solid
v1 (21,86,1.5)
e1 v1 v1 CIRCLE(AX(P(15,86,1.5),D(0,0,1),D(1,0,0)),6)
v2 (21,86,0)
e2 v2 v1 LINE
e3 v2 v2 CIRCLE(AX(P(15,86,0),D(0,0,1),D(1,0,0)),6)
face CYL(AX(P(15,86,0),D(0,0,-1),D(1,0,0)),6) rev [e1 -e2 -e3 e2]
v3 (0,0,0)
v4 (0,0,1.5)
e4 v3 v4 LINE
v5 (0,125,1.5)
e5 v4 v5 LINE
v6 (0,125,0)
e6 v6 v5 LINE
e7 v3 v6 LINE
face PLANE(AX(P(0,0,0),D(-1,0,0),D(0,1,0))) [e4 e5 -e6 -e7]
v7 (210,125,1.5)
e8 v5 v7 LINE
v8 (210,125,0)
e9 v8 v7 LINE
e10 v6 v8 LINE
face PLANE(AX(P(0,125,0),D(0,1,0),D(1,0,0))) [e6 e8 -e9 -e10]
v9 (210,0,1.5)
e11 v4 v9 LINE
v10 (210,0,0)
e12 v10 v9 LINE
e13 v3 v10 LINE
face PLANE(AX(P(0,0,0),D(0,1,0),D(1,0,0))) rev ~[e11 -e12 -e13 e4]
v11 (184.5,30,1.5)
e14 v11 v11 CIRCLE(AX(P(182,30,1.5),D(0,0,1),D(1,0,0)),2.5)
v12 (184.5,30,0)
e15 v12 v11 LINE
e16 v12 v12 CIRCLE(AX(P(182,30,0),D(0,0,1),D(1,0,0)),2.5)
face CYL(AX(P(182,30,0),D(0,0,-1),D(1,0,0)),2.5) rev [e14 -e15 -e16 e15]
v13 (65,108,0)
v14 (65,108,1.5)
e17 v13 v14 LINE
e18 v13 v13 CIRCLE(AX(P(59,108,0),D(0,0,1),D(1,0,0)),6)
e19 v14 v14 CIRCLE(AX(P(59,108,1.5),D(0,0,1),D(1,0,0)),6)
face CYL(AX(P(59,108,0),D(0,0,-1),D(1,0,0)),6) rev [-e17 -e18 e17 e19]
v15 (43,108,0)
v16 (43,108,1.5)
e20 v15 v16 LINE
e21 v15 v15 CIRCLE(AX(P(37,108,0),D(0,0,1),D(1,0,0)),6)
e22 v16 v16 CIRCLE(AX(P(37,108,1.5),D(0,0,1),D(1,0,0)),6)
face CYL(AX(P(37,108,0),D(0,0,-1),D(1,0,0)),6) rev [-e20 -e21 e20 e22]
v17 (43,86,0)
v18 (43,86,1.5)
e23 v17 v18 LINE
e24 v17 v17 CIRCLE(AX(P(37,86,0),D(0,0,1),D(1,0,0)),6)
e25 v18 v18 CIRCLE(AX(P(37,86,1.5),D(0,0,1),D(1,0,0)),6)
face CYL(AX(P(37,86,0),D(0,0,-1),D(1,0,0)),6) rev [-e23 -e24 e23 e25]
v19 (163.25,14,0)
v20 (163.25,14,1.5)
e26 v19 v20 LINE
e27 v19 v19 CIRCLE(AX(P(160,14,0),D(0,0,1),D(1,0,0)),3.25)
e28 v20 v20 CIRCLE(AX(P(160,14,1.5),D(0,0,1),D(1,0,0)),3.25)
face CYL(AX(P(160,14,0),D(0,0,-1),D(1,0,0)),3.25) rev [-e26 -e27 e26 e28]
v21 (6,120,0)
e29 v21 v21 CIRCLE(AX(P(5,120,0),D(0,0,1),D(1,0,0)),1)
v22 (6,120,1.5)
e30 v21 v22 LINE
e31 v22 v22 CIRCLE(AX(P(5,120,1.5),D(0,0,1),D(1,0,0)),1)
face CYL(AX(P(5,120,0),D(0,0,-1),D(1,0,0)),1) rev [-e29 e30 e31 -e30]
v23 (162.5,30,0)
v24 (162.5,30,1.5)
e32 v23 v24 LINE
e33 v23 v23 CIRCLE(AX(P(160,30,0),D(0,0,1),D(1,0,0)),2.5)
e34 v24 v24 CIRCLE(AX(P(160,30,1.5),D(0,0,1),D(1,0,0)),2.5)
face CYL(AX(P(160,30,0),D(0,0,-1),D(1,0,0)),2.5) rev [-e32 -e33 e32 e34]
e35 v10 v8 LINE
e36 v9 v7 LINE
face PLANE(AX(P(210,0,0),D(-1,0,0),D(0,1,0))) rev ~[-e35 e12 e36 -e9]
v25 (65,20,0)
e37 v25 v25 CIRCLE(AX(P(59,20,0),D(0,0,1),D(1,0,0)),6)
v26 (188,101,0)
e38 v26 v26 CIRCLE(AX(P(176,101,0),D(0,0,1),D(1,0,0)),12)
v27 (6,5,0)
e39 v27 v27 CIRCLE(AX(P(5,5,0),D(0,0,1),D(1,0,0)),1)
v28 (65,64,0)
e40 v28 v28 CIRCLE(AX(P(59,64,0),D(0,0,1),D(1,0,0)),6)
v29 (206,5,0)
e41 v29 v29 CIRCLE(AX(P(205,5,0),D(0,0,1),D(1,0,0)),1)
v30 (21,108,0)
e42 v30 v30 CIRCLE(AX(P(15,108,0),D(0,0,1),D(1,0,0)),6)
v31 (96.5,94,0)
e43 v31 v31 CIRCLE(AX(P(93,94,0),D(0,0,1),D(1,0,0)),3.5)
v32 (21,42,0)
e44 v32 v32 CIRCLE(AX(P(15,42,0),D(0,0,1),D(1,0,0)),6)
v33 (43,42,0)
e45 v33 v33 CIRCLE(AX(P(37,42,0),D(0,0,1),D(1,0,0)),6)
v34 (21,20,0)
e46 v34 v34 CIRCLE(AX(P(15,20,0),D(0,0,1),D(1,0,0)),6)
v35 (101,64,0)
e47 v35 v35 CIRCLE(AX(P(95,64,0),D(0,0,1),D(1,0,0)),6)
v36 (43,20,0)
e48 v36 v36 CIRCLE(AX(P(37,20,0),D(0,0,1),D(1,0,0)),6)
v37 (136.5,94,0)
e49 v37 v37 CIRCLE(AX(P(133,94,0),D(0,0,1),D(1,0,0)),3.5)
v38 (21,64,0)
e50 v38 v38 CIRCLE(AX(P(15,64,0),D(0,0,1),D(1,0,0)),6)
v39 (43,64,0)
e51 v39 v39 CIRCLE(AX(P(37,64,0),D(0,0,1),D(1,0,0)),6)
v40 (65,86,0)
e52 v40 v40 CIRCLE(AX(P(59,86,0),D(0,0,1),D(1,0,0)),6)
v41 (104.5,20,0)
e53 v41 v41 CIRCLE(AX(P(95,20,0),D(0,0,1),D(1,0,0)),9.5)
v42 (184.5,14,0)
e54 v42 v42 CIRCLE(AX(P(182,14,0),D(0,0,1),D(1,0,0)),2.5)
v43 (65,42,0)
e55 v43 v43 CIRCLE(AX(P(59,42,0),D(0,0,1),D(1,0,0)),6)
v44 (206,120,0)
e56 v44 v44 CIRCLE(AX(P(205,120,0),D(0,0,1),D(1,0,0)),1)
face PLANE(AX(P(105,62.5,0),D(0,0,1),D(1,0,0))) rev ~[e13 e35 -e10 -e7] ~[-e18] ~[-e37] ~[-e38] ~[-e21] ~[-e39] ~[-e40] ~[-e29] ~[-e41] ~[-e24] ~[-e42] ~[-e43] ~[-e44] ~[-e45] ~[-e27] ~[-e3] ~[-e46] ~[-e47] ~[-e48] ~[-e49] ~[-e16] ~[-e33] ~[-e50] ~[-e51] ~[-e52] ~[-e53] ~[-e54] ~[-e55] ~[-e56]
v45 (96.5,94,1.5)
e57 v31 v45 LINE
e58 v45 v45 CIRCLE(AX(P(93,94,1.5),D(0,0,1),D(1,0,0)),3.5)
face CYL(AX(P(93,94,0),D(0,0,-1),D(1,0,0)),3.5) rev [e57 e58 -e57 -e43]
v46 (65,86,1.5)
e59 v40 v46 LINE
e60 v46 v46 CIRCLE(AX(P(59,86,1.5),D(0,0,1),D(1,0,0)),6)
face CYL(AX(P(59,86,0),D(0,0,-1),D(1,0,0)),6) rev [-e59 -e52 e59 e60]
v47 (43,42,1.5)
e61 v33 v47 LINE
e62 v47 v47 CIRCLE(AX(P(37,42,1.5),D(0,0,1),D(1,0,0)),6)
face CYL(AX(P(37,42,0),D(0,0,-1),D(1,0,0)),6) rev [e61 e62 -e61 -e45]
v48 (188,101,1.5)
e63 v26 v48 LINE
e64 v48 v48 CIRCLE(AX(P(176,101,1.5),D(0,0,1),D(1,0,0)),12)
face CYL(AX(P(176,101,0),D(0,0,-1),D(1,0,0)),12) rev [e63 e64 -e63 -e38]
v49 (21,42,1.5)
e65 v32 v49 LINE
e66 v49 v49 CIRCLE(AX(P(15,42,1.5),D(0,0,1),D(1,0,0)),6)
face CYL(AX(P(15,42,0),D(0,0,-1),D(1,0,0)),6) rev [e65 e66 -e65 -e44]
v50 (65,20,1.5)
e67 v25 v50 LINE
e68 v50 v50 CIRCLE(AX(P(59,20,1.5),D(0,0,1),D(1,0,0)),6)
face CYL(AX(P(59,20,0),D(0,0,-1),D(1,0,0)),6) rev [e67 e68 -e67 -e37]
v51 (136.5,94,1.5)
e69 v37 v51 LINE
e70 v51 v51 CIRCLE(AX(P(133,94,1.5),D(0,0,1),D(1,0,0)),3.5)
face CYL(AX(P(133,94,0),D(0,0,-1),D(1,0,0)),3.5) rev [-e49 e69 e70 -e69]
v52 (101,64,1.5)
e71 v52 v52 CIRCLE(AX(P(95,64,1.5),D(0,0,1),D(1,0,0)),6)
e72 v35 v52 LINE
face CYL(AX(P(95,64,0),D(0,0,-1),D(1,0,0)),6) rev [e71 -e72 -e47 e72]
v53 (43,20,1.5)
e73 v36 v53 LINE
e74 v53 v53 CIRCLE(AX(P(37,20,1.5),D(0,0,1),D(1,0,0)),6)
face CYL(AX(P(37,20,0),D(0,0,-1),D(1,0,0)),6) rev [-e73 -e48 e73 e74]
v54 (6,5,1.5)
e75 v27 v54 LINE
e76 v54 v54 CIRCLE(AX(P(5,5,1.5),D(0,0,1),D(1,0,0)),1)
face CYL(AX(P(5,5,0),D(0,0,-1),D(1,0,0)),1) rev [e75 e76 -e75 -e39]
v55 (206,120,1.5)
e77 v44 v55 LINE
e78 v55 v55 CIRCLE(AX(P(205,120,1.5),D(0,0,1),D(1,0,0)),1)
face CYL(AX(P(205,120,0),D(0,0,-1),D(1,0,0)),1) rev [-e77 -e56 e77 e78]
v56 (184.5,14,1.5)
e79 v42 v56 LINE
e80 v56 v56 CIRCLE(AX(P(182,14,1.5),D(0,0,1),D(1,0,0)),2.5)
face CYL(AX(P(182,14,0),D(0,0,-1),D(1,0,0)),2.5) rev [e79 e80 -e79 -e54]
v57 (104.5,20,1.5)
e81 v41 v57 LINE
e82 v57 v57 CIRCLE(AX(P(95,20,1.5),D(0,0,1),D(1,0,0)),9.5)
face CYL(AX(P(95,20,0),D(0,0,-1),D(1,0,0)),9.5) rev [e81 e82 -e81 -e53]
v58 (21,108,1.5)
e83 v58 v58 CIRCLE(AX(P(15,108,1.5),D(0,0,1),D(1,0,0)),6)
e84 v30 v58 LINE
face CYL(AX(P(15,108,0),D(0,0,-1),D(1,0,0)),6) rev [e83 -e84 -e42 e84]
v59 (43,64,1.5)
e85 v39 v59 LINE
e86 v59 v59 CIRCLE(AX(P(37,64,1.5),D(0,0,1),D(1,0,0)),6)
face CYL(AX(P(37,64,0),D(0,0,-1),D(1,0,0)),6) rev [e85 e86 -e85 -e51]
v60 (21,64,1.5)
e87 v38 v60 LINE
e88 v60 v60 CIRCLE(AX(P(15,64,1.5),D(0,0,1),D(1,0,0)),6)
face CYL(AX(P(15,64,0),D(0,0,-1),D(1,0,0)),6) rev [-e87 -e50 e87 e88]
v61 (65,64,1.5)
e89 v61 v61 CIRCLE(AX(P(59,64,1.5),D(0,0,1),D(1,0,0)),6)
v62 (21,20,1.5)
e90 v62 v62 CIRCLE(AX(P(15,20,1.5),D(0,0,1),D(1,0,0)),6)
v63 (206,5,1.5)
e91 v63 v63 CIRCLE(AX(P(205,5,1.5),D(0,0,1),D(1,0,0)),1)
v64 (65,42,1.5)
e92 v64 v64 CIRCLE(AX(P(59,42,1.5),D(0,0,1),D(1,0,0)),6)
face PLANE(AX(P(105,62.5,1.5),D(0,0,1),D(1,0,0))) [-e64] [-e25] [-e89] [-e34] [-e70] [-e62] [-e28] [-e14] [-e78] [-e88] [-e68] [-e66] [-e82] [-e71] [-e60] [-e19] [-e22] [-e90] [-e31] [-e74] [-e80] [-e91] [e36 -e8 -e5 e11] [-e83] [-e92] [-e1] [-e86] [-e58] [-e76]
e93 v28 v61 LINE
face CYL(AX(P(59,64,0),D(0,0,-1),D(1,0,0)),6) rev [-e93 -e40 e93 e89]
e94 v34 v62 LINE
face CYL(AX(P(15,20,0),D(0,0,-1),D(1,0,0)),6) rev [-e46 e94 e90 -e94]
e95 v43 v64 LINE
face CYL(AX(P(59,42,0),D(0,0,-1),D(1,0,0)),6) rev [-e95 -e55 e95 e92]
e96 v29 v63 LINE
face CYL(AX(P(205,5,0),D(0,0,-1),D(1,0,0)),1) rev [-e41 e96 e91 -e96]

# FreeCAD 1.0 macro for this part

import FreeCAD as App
import Part
import Sketcher
from FreeCAD import Vector
Q = App.Units.Quantity

doc = App.newDocument("Part")
body = doc.addObject("PartDesign::Body", "Body")

# Sketch on XY plane
sketch1 = body.newObject("Sketcher::SketchObject", "Sketch")
sketch1.AttachmentSupport = (doc.getObject("XY_Plane"), [""])
sketch1.MapMode = "FlatFace"
sketch1.addGeometry(Part.LineSegment(Vector(0, 125, 0), Vector(0, 0, 0)), False)
sketch1.addGeometry(Part.LineSegment(Vector(0, 0, 0), Vector(210, 0, 0)), False)
sketch1.addGeometry(Part.LineSegment(Vector(210, 0, 0), Vector(210, 125, 0)), False)
sketch1.addGeometry(Part.LineSegment(Vector(210, 125, 0), Vector(0, 125, 0)), False)
sketch1.addGeometry(Part.Circle(Vector(5, 5, 0), Vector(0, 0, 1), 1), False)
sketch1.addGeometry(Part.Circle(Vector(15, 20, 0), Vector(0, 0, 1), 6), False)
sketch1.addGeometry(Part.Circle(Vector(37, 20, 0), Vector(0, 0, 1), 6), False)
sketch1.addGeometry(Part.Circle(Vector(59, 20, 0), Vector(0, 0, 1), 6), False)
sketch1.addGeometry(Part.Circle(Vector(95, 20, 0), Vector(0, 0, 1), 9.5), False)
sketch1.addGeometry(Part.Circle(Vector(15, 42, 0), Vector(0, 0, 1), 6), False)
sketch1.addGeometry(Part.Circle(Vector(37, 42, 0), Vector(0, 0, 1), 6), False)
sketch1.addGeometry(Part.Circle(Vector(59, 42, 0), Vector(0, 0, 1), 6), False)
sketch1.addGeometry(Part.Circle(Vector(160, 14, 0), Vector(0, 0, 1), 3.2), False)
sketch1.addGeometry(Part.Circle(Vector(205, 5, 0), Vector(0, 0, 1), 1), False)
sketch1.addGeometry(Part.Circle(Vector(182, 14, 0), Vector(0, 0, 1), 2.5), False)
sketch1.addGeometry(Part.Circle(Vector(160, 30, 0), Vector(0, 0, 1), 2.5), False)
sketch1.addGeometry(Part.Circle(Vector(182, 30, 0), Vector(0, 0, 1), 2.5), False)
sketch1.addGeometry(Part.Circle(Vector(15, 64, 0), Vector(0, 0, 1), 6), False)
sketch1.addGeometry(Part.Circle(Vector(37, 64, 0), Vector(0, 0, 1), 6), False)
sketch1.addGeometry(Part.Circle(Vector(15, 86, 0), Vector(0, 0, 1), 6), False)
sketch1.addGeometry(Part.Circle(Vector(37, 86, 0), Vector(0, 0, 1), 6), False)
sketch1.addGeometry(Part.Circle(Vector(59, 64, 0), Vector(0, 0, 1), 6), False)
sketch1.addGeometry(Part.Circle(Vector(95, 64, 0), Vector(0, 0, 1), 6), False)
sketch1.addGeometry(Part.Circle(Vector(59, 86, 0), Vector(0, 0, 1), 6), False)
sketch1.addGeometry(Part.Circle(Vector(15, 108, 0), Vector(0, 0, 1), 6), False)
sketch1.addGeometry(Part.Circle(Vector(5, 120, 0), Vector(0, 0, 1), 1), False)
sketch1.addGeometry(Part.Circle(Vector(37, 108, 0), Vector(0, 0, 1), 6), False)
sketch1.addGeometry(Part.Circle(Vector(93, 94, 0), Vector(0, 0, 1), 3.5), False)
sketch1.addGeometry(Part.Circle(Vector(59, 108, 0), Vector(0, 0, 1), 6), False)
sketch1.addGeometry(Part.Circle(Vector(133, 94, 0), Vector(0, 0, 1), 3.5), False)
sketch1.addGeometry(Part.Circle(Vector(176, 101, 0), Vector(0, 0, 1), 12), False)
sketch1.addGeometry(Part.Circle(Vector(205, 120, 0), Vector(0, 0, 1), 1), False)
sketch1.addConstraint(Sketcher.Constraint("Coincident", 0, 2, 1, 1))
sketch1.addConstraint(Sketcher.Constraint("Coincident", 1, 2, 2, 1))
sketch1.addConstraint(Sketcher.Constraint("Coincident", 2, 2, 3, 1))
sketch1.addConstraint(Sketcher.Constraint("Coincident", 3, 2, 0, 1))
sketch1.addConstraint(Sketcher.Constraint("Vertical", 0))
sketch1.addConstraint(Sketcher.Constraint("Horizontal", 1))
sketch1.addConstraint(Sketcher.Constraint("Vertical", 2))
sketch1.addConstraint(Sketcher.Constraint("Horizontal", 3))
sketch1.addConstraint(Sketcher.Constraint("Coincident", 0, 2, -1, 1))
sketch1.addConstraint(Sketcher.Constraint("Equal", 5, 6))
sketch1.addConstraint(Sketcher.Constraint("Equal", 6, 7))
sketch1.addConstraint(Sketcher.Constraint("Equal", 7, 9))
sketch1.addConstraint(Sketcher.Constraint("Equal", 9, 10))
sketch1.addConstraint(Sketcher.Constraint("Equal", 10, 11))
sketch1.addConstraint(Sketcher.Constraint("Equal", 4, 13))
sketch1.addConstraint(Sketcher.Constraint("Equal", 14, 15))
sketch1.addConstraint(Sketcher.Constraint("Equal", 15, 16))
sketch1.addConstraint(Sketcher.Constraint("Equal", 11, 17))
sketch1.addConstraint(Sketcher.Constraint("Equal", 17, 18))
sketch1.addConstraint(Sketcher.Constraint("Equal", 18, 19))
sketch1.addConstraint(Sketcher.Constraint("Equal", 19, 20))
sketch1.addConstraint(Sketcher.Constraint("Equal", 20, 21))
sketch1.addConstraint(Sketcher.Constraint("Equal", 21, 22))
sketch1.addConstraint(Sketcher.Constraint("Equal", 22, 23))
sketch1.addConstraint(Sketcher.Constraint("Equal", 23, 24))
sketch1.addConstraint(Sketcher.Constraint("Equal", 13, 25))
sketch1.addConstraint(Sketcher.Constraint("Equal", 24, 26))
sketch1.addConstraint(Sketcher.Constraint("Equal", 26, 28))
sketch1.addConstraint(Sketcher.Constraint("Equal", 27, 29))
sketch1.addConstraint(Sketcher.Constraint("Equal", 25, 31))
sketch1.addConstraint(Sketcher.Constraint("Horizontal", 5, 3, 6, 3))
sketch1.addConstraint(Sketcher.Constraint("Horizontal", 6, 3, 7, 3))
sketch1.addConstraint(Sketcher.Constraint("Horizontal", 7, 3, 8, 3))
sketch1.addConstraint(Sketcher.Constraint("Horizontal", 9, 3, 10, 3))
sketch1.addConstraint(Sketcher.Constraint("Horizontal", 10, 3, 11, 3))
sketch1.addConstraint(Sketcher.Constraint("Horizontal", 4, 3, 13, 3))
sketch1.addConstraint(Sketcher.Constraint("Horizontal", 12, 3, 14, 3))
sketch1.addConstraint(Sketcher.Constraint("Horizontal", 15, 3, 16, 3))
sketch1.addConstraint(Sketcher.Constraint("Horizontal", 17, 3, 18, 3))
sketch1.addConstraint(Sketcher.Constraint("Horizontal", 19, 3, 20, 3))
sketch1.addConstraint(Sketcher.Constraint("Horizontal", 18, 3, 21, 3))
sketch1.addConstraint(Sketcher.Constraint("Horizontal", 21, 3, 22, 3))
sketch1.addConstraint(Sketcher.Constraint("Horizontal", 20, 3, 23, 3))
sketch1.addConstraint(Sketcher.Constraint("Horizontal", 24, 3, 26, 3))
sketch1.addConstraint(Sketcher.Constraint("Horizontal", 26, 3, 28, 3))
sketch1.addConstraint(Sketcher.Constraint("Horizontal", 27, 3, 29, 3))
sketch1.addConstraint(Sketcher.Constraint("Horizontal", 25, 3, 31, 3))
sketch1.addConstraint(Sketcher.Constraint("Vertical", 5, 3, 9, 3))
sketch1.addConstraint(Sketcher.Constraint("Vertical", 6, 3, 10, 3))
sketch1.addConstraint(Sketcher.Constraint("Vertical", 7, 3, 11, 3))
sketch1.addConstraint(Sketcher.Constraint("Vertical", 12, 3, 15, 3))
sketch1.addConstraint(Sketcher.Constraint("Vertical", 14, 3, 16, 3))
sketch1.addConstraint(Sketcher.Constraint("Vertical", 9, 3, 17, 3))
sketch1.addConstraint(Sketcher.Constraint("Vertical", 10, 3, 18, 3))
sketch1.addConstraint(Sketcher.Constraint("Vertical", 17, 3, 19, 3))
sketch1.addConstraint(Sketcher.Constraint("Vertical", 18, 3, 20, 3))
sketch1.addConstraint(Sketcher.Constraint("Vertical", 11, 3, 21, 3))
sketch1.addConstraint(Sketcher.Constraint("Vertical", 8, 3, 22, 3))
sketch1.addConstraint(Sketcher.Constraint("Vertical", 21, 3, 23, 3))
sketch1.addConstraint(Sketcher.Constraint("Vertical", 19, 3, 24, 3))
sketch1.addConstraint(Sketcher.Constraint("Vertical", 4, 3, 25, 3))
sketch1.addConstraint(Sketcher.Constraint("Vertical", 20, 3, 26, 3))
sketch1.addConstraint(Sketcher.Constraint("Vertical", 23, 3, 28, 3))
sketch1.addConstraint(Sketcher.Constraint("Vertical", 13, 3, 31, 3))
sketch1.addConstraint(Sketcher.Constraint("Diameter", 4, Q("2 mm")))
sketch1.addConstraint(Sketcher.Constraint("Diameter", 5, Q("12 mm")))
sketch1.addConstraint(Sketcher.Constraint("Diameter", 8, Q("19 mm")))
sketch1.addConstraint(Sketcher.Constraint("Diameter", 14, Q("5 mm")))
sketch1.addConstraint(Sketcher.Constraint("Diameter", 27, Q("7 mm")))
sketch1.addConstraint(Sketcher.Constraint("Diameter", 30, Q("24 mm")))
sketch1.addConstraint(Sketcher.Constraint("Diameter", 12, Q("6.5 mm")))
sketch1.addConstraint(Sketcher.Constraint("DistanceX", 1, 1, 1, 2, Q("210 mm")))
sketch1.addConstraint(Sketcher.Constraint("DistanceY", 0, 2, 0, 1, Q("125 mm")))
sketch1.addConstraint(Sketcher.Constraint("DistanceX", -1, 1, 4, 3, Q("5 mm")))
sketch1.addConstraint(Sketcher.Constraint("DistanceY", -1, 1, 4, 3, Q("5 mm")))
sketch1.addConstraint(Sketcher.Constraint("DistanceX", -1, 1, 5, 3, Q("15 mm")))
sketch1.addConstraint(Sketcher.Constraint("DistanceY", -1, 1, 5, 3, Q("20 mm")))
sketch1.addConstraint(Sketcher.Constraint("DistanceX", -1, 1, 6, 3, Q("37 mm")))
sketch1.addConstraint(Sketcher.Constraint("DistanceX", -1, 1, 7, 3, Q("59 mm")))
sketch1.addConstraint(Sketcher.Constraint("DistanceX", -1, 1, 8, 3, Q("95 mm")))
sketch1.addConstraint(Sketcher.Constraint("DistanceY", -1, 1, 9, 3, Q("42 mm")))
sketch1.addConstraint(Sketcher.Constraint("DistanceX", -1, 1, 12, 3, Q("160 mm")))
sketch1.addConstraint(Sketcher.Constraint("DistanceY", -1, 1, 12, 3, Q("14 mm")))
sketch1.addConstraint(Sketcher.Constraint("DistanceX", -1, 1, 13, 3, Q("205 mm")))
sketch1.addConstraint(Sketcher.Constraint("DistanceX", -1, 1, 14, 3, Q("182 mm")))
sketch1.addConstraint(Sketcher.Constraint("DistanceY", -1, 1, 15, 3, Q("30 mm")))
sketch1.addConstraint(Sketcher.Constraint("DistanceY", -1, 1, 17, 3, Q("64 mm")))
sketch1.addConstraint(Sketcher.Constraint("DistanceY", -1, 1, 19, 3, Q("86 mm")))
sketch1.addConstraint(Sketcher.Constraint("DistanceY", -1, 1, 24, 3, Q("108 mm")))
sketch1.addConstraint(Sketcher.Constraint("DistanceY", -1, 1, 25, 3, Q("120 mm")))
sketch1.addConstraint(Sketcher.Constraint("DistanceX", -1, 1, 27, 3, Q("93 mm")))
sketch1.addConstraint(Sketcher.Constraint("DistanceY", -1, 1, 27, 3, Q("94 mm")))
sketch1.addConstraint(Sketcher.Constraint("DistanceX", -1, 1, 29, 3, Q("133 mm")))
sketch1.addConstraint(Sketcher.Constraint("DistanceX", -1, 1, 30, 3, Q("176 mm")))
sketch1.addConstraint(Sketcher.Constraint("DistanceY", -1, 1, 30, 3, Q("101 mm")))
pad1 = body.newObject("PartDesign::Pad", "Pad")
pad1.Profile = sketch1
pad1.Length = 1.5

doc.recompute()
